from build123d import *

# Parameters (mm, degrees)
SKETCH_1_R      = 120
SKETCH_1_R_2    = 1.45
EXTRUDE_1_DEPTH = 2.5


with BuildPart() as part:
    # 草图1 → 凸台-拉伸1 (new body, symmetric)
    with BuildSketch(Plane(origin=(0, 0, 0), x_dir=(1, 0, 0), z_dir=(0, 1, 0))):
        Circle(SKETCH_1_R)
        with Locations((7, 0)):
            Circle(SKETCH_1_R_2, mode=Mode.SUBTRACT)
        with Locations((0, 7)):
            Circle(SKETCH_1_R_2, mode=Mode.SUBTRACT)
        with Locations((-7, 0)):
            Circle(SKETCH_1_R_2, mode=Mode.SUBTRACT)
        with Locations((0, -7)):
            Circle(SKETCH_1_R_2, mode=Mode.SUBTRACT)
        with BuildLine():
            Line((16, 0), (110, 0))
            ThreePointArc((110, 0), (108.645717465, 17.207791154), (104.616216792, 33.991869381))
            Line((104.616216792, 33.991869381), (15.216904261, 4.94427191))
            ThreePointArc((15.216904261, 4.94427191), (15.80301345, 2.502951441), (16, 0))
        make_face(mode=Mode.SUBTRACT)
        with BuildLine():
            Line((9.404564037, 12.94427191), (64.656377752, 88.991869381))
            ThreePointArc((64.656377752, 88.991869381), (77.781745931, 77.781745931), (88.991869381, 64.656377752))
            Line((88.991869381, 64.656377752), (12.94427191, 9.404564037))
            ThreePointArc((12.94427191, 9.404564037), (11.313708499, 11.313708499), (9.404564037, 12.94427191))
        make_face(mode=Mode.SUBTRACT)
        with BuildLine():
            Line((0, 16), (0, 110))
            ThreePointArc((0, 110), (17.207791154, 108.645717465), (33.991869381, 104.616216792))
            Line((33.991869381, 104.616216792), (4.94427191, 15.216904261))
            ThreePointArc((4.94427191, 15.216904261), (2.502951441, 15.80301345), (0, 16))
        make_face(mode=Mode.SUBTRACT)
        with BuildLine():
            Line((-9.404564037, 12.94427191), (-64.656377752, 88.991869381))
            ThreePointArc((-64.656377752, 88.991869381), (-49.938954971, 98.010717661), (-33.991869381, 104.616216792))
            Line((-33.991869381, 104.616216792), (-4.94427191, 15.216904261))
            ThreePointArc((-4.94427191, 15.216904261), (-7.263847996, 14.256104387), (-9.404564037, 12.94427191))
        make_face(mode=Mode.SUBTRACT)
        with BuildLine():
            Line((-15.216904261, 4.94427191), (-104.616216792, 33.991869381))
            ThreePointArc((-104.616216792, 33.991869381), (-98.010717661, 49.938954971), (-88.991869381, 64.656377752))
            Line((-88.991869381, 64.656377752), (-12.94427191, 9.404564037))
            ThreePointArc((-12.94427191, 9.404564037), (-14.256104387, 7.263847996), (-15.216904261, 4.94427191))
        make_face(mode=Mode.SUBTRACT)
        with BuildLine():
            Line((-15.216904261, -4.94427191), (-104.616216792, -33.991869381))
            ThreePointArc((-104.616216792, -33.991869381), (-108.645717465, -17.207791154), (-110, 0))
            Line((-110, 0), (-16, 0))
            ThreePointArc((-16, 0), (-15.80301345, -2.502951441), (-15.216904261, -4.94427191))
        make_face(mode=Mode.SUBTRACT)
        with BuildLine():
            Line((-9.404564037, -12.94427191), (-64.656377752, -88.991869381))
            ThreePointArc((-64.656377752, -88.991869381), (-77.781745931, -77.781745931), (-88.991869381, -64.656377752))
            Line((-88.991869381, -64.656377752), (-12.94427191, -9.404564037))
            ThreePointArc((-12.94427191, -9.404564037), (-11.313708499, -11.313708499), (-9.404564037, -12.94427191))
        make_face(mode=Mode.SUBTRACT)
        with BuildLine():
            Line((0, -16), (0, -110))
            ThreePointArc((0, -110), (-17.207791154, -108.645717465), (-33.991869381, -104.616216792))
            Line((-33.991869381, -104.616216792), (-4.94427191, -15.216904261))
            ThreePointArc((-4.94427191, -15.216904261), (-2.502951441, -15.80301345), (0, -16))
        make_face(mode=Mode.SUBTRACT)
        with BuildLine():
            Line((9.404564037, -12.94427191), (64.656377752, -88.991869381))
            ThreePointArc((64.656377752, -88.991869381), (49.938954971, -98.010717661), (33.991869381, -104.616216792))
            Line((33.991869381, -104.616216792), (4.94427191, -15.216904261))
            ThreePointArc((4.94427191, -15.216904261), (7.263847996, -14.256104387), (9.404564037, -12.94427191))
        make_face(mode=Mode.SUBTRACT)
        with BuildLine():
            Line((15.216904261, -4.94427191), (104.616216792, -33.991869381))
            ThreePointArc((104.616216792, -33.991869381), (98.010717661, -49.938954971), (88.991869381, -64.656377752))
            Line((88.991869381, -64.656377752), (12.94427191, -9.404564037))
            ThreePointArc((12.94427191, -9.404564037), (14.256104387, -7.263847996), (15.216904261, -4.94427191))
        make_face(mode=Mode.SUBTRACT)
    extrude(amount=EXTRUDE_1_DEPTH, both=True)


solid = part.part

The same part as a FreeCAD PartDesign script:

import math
import FreeCAD as App
import Part
import Sketcher

V = App.Vector
Q = App.Units.Quantity

doc = App.newDocument("Part")
body = doc.addObject("PartDesign::Body", "Body")

# Sketch on XZ plane
sketch1 = body.newObject("Sketcher::SketchObject", "Sketch")
sketch1.AttachmentSupport = (doc.getObject("XZ_Plane"), [""])
sketch1.MapMode = "FlatFace"
sketch1.addGeometry([
    Part.Circle(V(0, 0, 0), V(0, 0, 1), 120),  # 0
    Part.ArcOfCircle(Part.Circle(V(0, 0, 0), V(0, 0, 1), 16), math.radians(90), math.radians(108)),  # 1
    Part.LineSegment(V(0, 16, 0), V(0, 110, 0)),  # 2
    Part.ArcOfCircle(Part.Circle(V(0, 0, 0), V(0, 0, 1), 110), math.radians(90), math.radians(108)),  # 3
    Part.LineSegment(V(-33.991869, 104.616217, 0), V(-4.944272, 15.216904, 0)),  # 4
    Part.ArcOfCircle(Part.Circle(V(0, 0, 0), V(0, 0, 1), 16), math.radians(162), math.radians(180)),  # 5
    Part.LineSegment(V(-15.216904, 4.944272, 0), V(-104.616217, 33.991869, 0)),  # 6
    Part.ArcOfCircle(Part.Circle(V(0, 0, 0), V(0, 0, 1), 110), math.radians(162), math.radians(180)),  # 7
    Part.LineSegment(V(-110, 0, 0), V(-16, 0, 0)),  # 8
    Part.ArcOfCircle(Part.Circle(V(0, 0, 0), V(0, 0, 1), 16), math.radians(126), math.radians(144)),  # 9
    Part.LineSegment(V(-9.404564, 12.944272, 0), V(-64.656378, 88.991869, 0)),  # 10
    Part.ArcOfCircle(Part.Circle(V(0, 0, 0), V(0, 0, 1), 110), math.radians(126), math.radians(144)),  # 11
    Part.LineSegment(V(-88.991869, 64.656378, 0), V(-12.944272, 9.404564, 0)),  # 12
    Part.ArcOfCircle(Part.Circle(V(0, 0, 0), V(0, 0, 1), 16), math.radians(54), math.radians(72)),  # 13
    Part.LineSegment(V(9.404564, 12.944272, 0), V(64.656378, 88.991869, 0)),  # 14
    Part.ArcOfCircle(Part.Circle(V(0, 0, 0), V(0, 0, 1), 110), math.radians(54), math.radians(72)),  # 15
    Part.LineSegment(V(33.991869, 104.616217, 0), V(4.944272, 15.216904, 0)),  # 16
    Part.Circle(V(0, 7, 0), V(0, 0, 1), 1.45),  # 17
    Part.ArcOfCircle(Part.Circle(V(0, 0, 0), V(0, 0, 1), 16), math.radians(18), math.radians(36)),  # 18
    Part.LineSegment(V(15.216904, 4.944272, 0), V(104.616217, 33.991869, 0)),  # 19
    Part.ArcOfCircle(Part.Circle(V(0, 0, 0), V(0, 0, 1), 110), math.radians(18), math.radians(36)),  # 20
    Part.LineSegment(V(88.991869, 64.656378, 0), V(12.944272, 9.404564, 0)),  # 21
    Part.ArcOfCircle(Part.Circle(V(0, 0, 0), V(0, 0, 1), 16), math.radians(-162), math.radians(-144)),  # 22
    Part.LineSegment(V(-15.216904, -4.944272, 0), V(-104.616217, -33.991869, 0)),  # 23
    Part.ArcOfCircle(Part.Circle(V(0, 0, 0), V(0, 0, 1), 110), math.radians(-162), math.radians(-144)),  # 24
    Part.LineSegment(V(-88.991869, -64.656378, 0), V(-12.944272, -9.404564, 0)),  # 25
    Part.Circle(V(-7, 0, 0), V(0, 0, 1), 1.45),  # 26
    Part.ArcOfCircle(Part.Circle(V(0, 0, 0), V(0, 0, 1), 16), math.radians(-126), math.radians(-108)),  # 27
    Part.LineSegment(V(-9.404564, -12.944272, 0), V(-64.656378, -88.991869, 0)),  # 28
    Part.ArcOfCircle(Part.Circle(V(0, 0, 0), V(0, 0, 1), 110), math.radians(-126), math.radians(-108)),  # 29
    Part.LineSegment(V(-33.991869, -104.616217, 0), V(-4.944272, -15.216904, 0)),  # 30
    Part.Circle(V(7, 0, 0), V(0, 0, 1), 1.45),  # 31
    Part.Circle(V(0, -7, 0), V(0, 0, 1), 1.45),  # 32
    Part.ArcOfCircle(Part.Circle(V(0, 0, 0), V(0, 0, 1), 16), math.radians(-54), math.radians(-36)),  # 33
    Part.LineSegment(V(9.404564, -12.944272, 0), V(64.656378, -88.991869, 0)),  # 34
    Part.ArcOfCircle(Part.Circle(V(0, 0, 0), V(0, 0, 1), 110), math.radians(-54), math.radians(-36)),  # 35
    Part.LineSegment(V(88.991869, -64.656378, 0), V(12.944272, -9.404564, 0)),  # 36
    Part.LineSegment(V(110, 0, 0), V(16, 0, 0)),  # 37
    Part.ArcOfCircle(Part.Circle(V(0, 0, 0), V(0, 0, 1), 16), math.radians(-18), math.radians(0)),  # 38
    Part.LineSegment(V(15.216904, -4.944272, 0), V(104.616217, -33.991869, 0)),  # 39
    Part.ArcOfCircle(Part.Circle(V(0, 0, 0), V(0, 0, 1), 110), math.radians(-18), math.radians(0)),  # 40
    Part.ArcOfCircle(Part.Circle(V(0, 0, 0), V(0, 0, 1), 16), math.radians(-90), math.radians(-72)),  # 41
    Part.LineSegment(V(0, -16, 0), V(0, -110, 0)),  # 42
    Part.ArcOfCircle(Part.Circle(V(0, 0, 0), V(0, 0, 1), 110), math.radians(-90), math.radians(-72)),  # 43
    Part.LineSegment(V(33.991869, -104.616217, 0), V(4.944272, -15.216904, 0)),  # 44
], False)
sketch1.addConstraint([
    Sketcher.Constraint("Coincident", 1, 1, 2, 1),
    Sketcher.Constraint("Coincident", 2, 2, 3, 1),
    Sketcher.Constraint("Coincident", 3, 2, 4, 1),
    Sketcher.Constraint("Coincident", 4, 2, 1, 2),
    Sketcher.Constraint("Coincident", 5, 1, 6, 1),
    Sketcher.Constraint("Coincident", 6, 2, 7, 1),
    Sketcher.Constraint("Coincident", 7, 2, 8, 1),
    Sketcher.Constraint("Coincident", 8, 2, 5, 2),
    Sketcher.Constraint("Coincident", 9, 1, 10, 1),
    Sketcher.Constraint("Coincident", 10, 2, 11, 1),
    Sketcher.Constraint("Coincident", 11, 2, 12, 1),
    Sketcher.Constraint("Coincident", 12, 2, 9, 2),
    Sketcher.Constraint("Coincident", 13, 1, 14, 1),
    Sketcher.Constraint("Coincident", 14, 2, 15, 1),
    Sketcher.Constraint("Coincident", 15, 2, 16, 1),
    Sketcher.Constraint("Coincident", 16, 2, 13, 2),
    Sketcher.Constraint("Coincident", 18, 1, 19, 1),
    Sketcher.Constraint("Coincident", 19, 2, 20, 1),
    Sketcher.Constraint("Coincident", 20, 2, 21, 1),
    Sketcher.Constraint("Coincident", 21, 2, 18, 2),
    Sketcher.Constraint("Coincident", 22, 1, 23, 1),
    Sketcher.Constraint("Coincident", 23, 2, 24, 1),
    Sketcher.Constraint("Coincident", 24, 2, 25, 1),
    Sketcher.Constraint("Coincident", 25, 2, 22, 2),
    Sketcher.Constraint("Coincident", 27, 1, 28, 1),
    Sketcher.Constraint("Coincident", 28, 2, 29, 1),
    Sketcher.Constraint("Coincident", 29, 2, 30, 1),
    Sketcher.Constraint("Coincident", 30, 2, 27, 2),
    Sketcher.Constraint("Coincident", 33, 1, 34, 1),
    Sketcher.Constraint("Coincident", 34, 2, 35, 1),
    Sketcher.Constraint("Coincident", 35, 2, 36, 1),
    Sketcher.Constraint("Coincident", 36, 2, 33, 2),
    Sketcher.Constraint("Coincident", 37, 2, 38, 2),
    Sketcher.Constraint("Coincident", 38, 1, 39, 1),
    Sketcher.Constraint("Coincident", 39, 2, 40, 1),
    Sketcher.Constraint("Coincident", 40, 2, 37, 1),
    Sketcher.Constraint("Coincident", 41, 1, 42, 1),
    Sketcher.Constraint("Coincident", 42, 2, 43, 1),
    Sketcher.Constraint("Coincident", 43, 2, 44, 1),
    Sketcher.Constraint("Coincident", 44, 2, 41, 2),
    Sketcher.Constraint("Vertical", 2),
    Sketcher.Constraint("Horizontal", 8),
    Sketcher.Constraint("Horizontal", 37),
    Sketcher.Constraint("Vertical", 42),
    Sketcher.Constraint("Coincident", 0, 3, -1, 1),
    Sketcher.Constraint("Coincident", 1, 3, -1, 1),
    Sketcher.Constraint("Coincident", 3, 3, -1, 1),
    Sketcher.Constraint("Coincident", 5, 3, -1, 1),
    Sketcher.Constraint("Coincident", 7, 3, -1, 1),
    Sketcher.Constraint("Coincident", 9, 3, -1, 1),
    Sketcher.Constraint("Coincident", 11, 3, -1, 1),
    Sketcher.Constraint("Coincident", 13, 3, -1, 1),
    Sketcher.Constraint("Coincident", 15, 3, -1, 1),
    Sketcher.Constraint("Coincident", 18, 3, -1, 1),
    Sketcher.Constraint("Coincident", 20, 3, -1, 1),
    Sketcher.Constraint("Coincident", 22, 3, -1, 1),
    Sketcher.Constraint("Coincident", 24, 3, -1, 1),
    Sketcher.Constraint("Coincident", 27, 3, -1, 1),
    Sketcher.Constraint("Coincident", 29, 3, -1, 1),
    Sketcher.Constraint("Coincident", 33, 3, -1, 1),
    Sketcher.Constraint("Coincident", 35, 3, -1, 1),
    Sketcher.Constraint("Coincident", 38, 3, -1, 1),
    Sketcher.Constraint("Coincident", 40, 3, -1, 1),
    Sketcher.Constraint("Coincident", 41, 3, -1, 1),
    Sketcher.Constraint("Coincident", 43, 3, -1, 1),
    Sketcher.Constraint("Equal", 1, 5),
    Sketcher.Constraint("Equal", 3, 7),
    Sketcher.Constraint("Equal", 5, 9),
    Sketcher.Constraint("Equal", 7, 11),
    Sketcher.Constraint("Equal", 9, 13),
    Sketcher.Constraint("Equal", 11, 15),
    Sketcher.Constraint("Equal", 13, 18),
    Sketcher.Constraint("Equal", 15, 20),
    Sketcher.Constraint("Equal", 18, 22),
    Sketcher.Constraint("Equal", 20, 24),
    Sketcher.Constraint("Equal", 17, 26),
    Sketcher.Constraint("Equal", 22, 27),
    Sketcher.Constraint("Equal", 24, 29),
    Sketcher.Constraint("Equal", 26, 31),
    Sketcher.Constraint("Equal", 31, 32),
    Sketcher.Constraint("Equal", 27, 33),
    Sketcher.Constraint("Equal", 29, 35),
    Sketcher.Constraint("Equal", 33, 38),
    Sketcher.Constraint("Equal", 35, 40),
    Sketcher.Constraint("Equal", 38, 41),
    Sketcher.Constraint("Equal", 40, 43),
    Sketcher.Constraint("Symmetric", 26, 3, 31, 3, -1, 1),
    Sketcher.Constraint("Symmetric", 17, 3, 32, 3, -1, 1),
    Sketcher.Constraint("PointOnObject", 17, 3, -2),
    Sketcher.Constraint("PointOnObject", 26, 3, -1),
    Sketcher.Constraint("PointOnObject", 1, 1, -2),
    Sketcher.Constraint("PointOnObject", 7, 2, -1),
    Sketcher.Constraint("PointOnObject", 37, 2, -1),
    Sketcher.Constraint("PointOnObject", 41, 1, -2),
    Sketcher.Constraint("Perpendicular", 12, 14),
    Sketcher.Constraint("Perpendicular", 6, 16),
    Sketcher.Constraint("Perpendicular", 4, 19),
    Sketcher.Constraint("Perpendicular", 10, 21),
    Sketcher.Constraint("Parallel", 19, 23),
    Sketcher.Constraint("Parallel", 21, 25),
    Sketcher.Constraint("Parallel", 14, 28),
    Sketcher.Constraint("Parallel", 16, 30),
    Sketcher.Constraint("Perpendicular", 25, 34),
    Sketcher.Constraint("Perpendicular", 28, 36),
    Sketcher.Constraint("Perpendicular", 30, 39),
    Sketcher.Constraint("Perpendicular", 23, 44),
    Sketcher.Constraint("Horizontal", 9, 1, 13, 1),
    Sketcher.Constraint("Horizontal", 10, 2, 14, 2),
    Sketcher.Constraint("Horizontal", 3, 2, 15, 2),
    Sketcher.Constraint("Horizontal", 4, 2, 16, 2),
    Sketcher.Constraint("Horizontal", 5, 1, 18, 1),
    Sketcher.Constraint("Horizontal", 11, 2, 20, 2),
    Sketcher.Constraint("Horizontal", 27, 1, 33, 1),
    Sketcher.Constraint("Horizontal", 24, 2, 35, 2),
    Sketcher.Constraint("Horizontal", 22, 1, 38, 1),
    Sketcher.Constraint("Horizontal", 29, 2, 43, 2),
    Sketcher.Constraint("Vertical", 5, 1, 22, 1),
    Sketcher.Constraint("Vertical", 11, 2, 24, 2),
    Sketcher.Constraint("Vertical", 9, 1, 27, 1),
    Sketcher.Constraint("Vertical", 3, 2, 29, 2),
    Sketcher.Constraint("Diameter", 0, Q("240 mm")),
    Sketcher.Constraint("Radius", 1, Q("16 mm")),
    Sketcher.Constraint("Radius", 3, Q("110 mm")),
    Sketcher.Constraint("Diameter", 17, Q("2.9 mm")),
    Sketcher.Constraint("Angle", 4, Q("-72 deg")),
    Sketcher.Constraint("Angle", 10, Q("126 deg")),
    Sketcher.Constraint("DistanceY", -1, 1, 17, 3, Q("7 mm")),
    Sketcher.Constraint("DistanceX", 26, 3, -1, 1, Q("7 mm")),
    Sketcher.Constraint("DistanceX", 3, 2, -1, 1, Q("33.991869 mm")),
    Sketcher.Constraint("DistanceY", -1, 1, 5, 1, Q("4.944272 mm")),
    Sketcher.Constraint("DistanceY", -1, 1, 9, 1, Q("12.944272 mm")),
    Sketcher.Constraint("DistanceX", 11, 2, -1, 1, Q("88.991869 mm")),
])
pad1 = body.newObject("PartDesign::Pad", "Pad")
pad1.Profile = sketch1
pad1.Length = 5
pad1.Midplane = True

doc.recompute()
